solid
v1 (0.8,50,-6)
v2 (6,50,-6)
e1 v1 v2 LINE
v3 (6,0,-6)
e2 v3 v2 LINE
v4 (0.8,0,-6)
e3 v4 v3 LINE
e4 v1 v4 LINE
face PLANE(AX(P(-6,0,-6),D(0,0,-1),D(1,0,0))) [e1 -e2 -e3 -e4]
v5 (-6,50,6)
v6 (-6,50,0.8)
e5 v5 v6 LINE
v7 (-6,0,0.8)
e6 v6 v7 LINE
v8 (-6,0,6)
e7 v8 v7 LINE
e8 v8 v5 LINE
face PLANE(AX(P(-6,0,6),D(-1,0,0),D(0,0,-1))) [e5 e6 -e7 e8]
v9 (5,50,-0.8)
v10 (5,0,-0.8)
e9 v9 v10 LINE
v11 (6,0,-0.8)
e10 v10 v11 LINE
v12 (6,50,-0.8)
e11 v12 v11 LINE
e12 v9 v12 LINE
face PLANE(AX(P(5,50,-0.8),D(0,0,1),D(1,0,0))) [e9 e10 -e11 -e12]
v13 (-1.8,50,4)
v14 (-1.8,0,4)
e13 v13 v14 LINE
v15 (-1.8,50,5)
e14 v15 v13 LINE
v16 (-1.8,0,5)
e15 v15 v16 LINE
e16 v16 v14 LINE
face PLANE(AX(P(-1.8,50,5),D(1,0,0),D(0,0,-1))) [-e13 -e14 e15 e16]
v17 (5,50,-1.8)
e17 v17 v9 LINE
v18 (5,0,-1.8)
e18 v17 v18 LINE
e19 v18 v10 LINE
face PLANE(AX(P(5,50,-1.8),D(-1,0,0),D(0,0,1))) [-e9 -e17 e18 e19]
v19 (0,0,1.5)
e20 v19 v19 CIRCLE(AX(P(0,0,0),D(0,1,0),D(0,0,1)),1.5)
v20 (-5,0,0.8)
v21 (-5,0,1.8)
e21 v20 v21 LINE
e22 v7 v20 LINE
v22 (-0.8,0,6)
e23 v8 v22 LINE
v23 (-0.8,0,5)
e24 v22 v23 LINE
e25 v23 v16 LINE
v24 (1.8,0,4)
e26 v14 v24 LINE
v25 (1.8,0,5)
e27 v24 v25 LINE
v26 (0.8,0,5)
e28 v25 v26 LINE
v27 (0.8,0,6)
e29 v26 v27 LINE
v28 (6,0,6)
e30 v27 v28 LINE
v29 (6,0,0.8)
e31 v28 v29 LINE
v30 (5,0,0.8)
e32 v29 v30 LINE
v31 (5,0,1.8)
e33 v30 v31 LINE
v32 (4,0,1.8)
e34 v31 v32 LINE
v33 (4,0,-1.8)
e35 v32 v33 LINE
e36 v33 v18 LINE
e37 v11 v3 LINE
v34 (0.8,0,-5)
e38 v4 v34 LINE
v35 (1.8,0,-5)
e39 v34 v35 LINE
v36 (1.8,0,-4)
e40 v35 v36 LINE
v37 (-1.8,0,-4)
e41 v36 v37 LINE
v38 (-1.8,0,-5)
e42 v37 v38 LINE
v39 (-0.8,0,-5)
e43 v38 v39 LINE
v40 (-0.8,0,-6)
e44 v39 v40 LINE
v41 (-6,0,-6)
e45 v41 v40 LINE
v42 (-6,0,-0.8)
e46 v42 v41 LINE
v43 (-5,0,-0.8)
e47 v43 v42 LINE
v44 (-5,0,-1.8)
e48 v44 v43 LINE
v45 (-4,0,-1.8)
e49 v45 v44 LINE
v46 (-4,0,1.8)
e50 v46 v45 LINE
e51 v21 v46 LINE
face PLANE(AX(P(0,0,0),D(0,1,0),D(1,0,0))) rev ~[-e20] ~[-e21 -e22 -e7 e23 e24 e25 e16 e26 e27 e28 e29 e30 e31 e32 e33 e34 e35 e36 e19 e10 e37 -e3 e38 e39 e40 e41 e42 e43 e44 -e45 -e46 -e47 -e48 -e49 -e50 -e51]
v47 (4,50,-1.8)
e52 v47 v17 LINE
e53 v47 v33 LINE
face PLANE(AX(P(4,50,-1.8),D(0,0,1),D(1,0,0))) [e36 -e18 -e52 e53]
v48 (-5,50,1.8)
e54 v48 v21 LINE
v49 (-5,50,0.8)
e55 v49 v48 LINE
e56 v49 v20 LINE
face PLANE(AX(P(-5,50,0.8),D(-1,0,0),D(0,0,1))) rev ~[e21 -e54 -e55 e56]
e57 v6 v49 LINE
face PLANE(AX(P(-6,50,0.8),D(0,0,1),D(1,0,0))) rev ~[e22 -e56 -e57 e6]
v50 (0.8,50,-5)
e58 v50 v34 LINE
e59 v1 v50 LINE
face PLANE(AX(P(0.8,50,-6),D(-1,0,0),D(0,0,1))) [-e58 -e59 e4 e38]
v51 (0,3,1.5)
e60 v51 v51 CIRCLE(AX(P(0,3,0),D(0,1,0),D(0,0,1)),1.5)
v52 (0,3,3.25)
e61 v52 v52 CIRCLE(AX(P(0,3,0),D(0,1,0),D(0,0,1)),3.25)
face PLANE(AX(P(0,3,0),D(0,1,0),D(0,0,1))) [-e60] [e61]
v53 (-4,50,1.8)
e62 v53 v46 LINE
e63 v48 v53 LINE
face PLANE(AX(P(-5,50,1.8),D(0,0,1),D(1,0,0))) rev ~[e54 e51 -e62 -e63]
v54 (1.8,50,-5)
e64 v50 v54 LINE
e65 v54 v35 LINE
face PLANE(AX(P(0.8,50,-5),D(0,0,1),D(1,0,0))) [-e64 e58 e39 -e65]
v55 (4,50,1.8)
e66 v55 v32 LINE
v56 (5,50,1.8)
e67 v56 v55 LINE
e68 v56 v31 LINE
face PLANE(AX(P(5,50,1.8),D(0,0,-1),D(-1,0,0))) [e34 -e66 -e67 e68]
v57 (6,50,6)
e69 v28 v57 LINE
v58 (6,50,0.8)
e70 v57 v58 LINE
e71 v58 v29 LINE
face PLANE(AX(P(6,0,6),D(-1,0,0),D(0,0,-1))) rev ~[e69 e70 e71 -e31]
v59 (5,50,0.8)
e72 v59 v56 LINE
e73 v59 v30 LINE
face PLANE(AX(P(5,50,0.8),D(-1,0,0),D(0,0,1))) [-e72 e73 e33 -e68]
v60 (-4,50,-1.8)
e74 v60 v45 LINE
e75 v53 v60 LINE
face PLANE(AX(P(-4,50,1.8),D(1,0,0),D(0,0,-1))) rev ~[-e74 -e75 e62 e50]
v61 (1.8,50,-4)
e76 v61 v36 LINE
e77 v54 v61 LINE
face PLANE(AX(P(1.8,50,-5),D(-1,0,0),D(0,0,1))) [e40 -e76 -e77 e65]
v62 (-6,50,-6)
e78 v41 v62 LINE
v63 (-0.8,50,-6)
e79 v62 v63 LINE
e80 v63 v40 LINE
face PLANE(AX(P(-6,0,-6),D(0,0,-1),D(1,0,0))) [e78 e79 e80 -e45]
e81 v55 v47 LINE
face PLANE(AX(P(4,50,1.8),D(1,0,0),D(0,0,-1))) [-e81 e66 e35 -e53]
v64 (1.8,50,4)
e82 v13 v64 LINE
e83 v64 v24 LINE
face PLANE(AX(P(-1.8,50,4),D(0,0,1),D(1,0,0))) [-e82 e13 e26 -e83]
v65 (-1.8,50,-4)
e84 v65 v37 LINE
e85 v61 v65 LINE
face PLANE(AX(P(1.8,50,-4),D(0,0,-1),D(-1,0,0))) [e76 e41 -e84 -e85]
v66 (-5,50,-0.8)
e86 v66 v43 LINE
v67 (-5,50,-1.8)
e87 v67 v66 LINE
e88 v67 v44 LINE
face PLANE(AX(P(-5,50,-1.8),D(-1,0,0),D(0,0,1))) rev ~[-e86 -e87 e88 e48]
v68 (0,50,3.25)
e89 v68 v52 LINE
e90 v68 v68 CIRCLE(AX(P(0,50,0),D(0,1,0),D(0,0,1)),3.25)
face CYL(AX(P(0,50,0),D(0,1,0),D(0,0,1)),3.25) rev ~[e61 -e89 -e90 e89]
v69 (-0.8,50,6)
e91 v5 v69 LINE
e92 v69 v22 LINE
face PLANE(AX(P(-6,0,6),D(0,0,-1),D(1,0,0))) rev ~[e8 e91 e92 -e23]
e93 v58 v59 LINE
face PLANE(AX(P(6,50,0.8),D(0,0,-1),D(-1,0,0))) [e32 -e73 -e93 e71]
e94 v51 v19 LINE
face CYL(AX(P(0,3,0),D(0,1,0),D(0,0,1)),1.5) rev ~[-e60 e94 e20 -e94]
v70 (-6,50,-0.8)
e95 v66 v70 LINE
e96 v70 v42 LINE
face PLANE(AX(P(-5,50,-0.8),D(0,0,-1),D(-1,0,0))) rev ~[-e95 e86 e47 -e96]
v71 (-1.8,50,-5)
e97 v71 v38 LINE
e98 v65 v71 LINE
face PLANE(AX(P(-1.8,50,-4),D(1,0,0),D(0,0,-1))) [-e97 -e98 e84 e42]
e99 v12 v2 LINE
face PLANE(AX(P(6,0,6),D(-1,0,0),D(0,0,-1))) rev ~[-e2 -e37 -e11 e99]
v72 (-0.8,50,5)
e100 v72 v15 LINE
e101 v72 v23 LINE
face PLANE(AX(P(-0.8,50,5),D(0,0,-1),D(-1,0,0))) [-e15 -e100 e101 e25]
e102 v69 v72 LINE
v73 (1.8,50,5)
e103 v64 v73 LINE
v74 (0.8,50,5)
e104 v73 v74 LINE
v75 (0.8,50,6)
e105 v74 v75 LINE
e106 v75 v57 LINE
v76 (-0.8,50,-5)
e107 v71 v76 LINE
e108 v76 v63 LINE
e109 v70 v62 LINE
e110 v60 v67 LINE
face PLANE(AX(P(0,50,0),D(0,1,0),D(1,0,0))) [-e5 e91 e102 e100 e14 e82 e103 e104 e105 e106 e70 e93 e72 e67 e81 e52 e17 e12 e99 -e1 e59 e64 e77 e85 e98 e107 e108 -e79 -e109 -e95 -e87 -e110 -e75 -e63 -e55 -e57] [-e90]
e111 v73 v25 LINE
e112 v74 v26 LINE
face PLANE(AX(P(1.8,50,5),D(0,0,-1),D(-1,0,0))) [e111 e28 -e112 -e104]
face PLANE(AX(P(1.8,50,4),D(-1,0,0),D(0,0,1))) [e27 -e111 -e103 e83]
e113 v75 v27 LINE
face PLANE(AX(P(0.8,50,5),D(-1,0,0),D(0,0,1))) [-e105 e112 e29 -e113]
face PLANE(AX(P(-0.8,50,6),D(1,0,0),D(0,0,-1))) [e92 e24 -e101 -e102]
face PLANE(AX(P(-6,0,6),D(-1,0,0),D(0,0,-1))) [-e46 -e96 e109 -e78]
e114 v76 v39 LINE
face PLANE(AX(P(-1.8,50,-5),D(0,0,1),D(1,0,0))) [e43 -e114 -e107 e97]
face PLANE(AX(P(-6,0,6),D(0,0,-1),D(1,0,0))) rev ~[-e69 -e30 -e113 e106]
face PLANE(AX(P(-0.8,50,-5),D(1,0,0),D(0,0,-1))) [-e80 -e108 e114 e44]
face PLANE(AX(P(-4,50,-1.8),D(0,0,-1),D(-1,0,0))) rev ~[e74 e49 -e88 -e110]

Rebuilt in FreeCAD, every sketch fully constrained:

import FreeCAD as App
import Part
import Sketcher


def add_polygon(sketch, points):
    """Adds a closed chain of lines whose ends are joined by coincident constraints."""
    first, n = sketch.GeometryCount, len(points)
    for a, b in zip(points, points[1:] + points[:1]):
        sketch.addGeometry(Part.LineSegment(App.Vector(*a, 0), App.Vector(*b, 0)), False)
    for i in range(n):
        sketch.addConstraint(Sketcher.Constraint("Coincident", first + i, 2, first + (i + 1) % n, 1))

doc = App.newDocument("Part")
body = doc.addObject("PartDesign::Body", "Body")

sketch1 = body.newObject("Sketcher::SketchObject", "Sketch")
sketch1.AttachmentSupport = (doc.getObject("XZ_Plane"), [""])
sketch1.MapMode = "FlatFace"
add_polygon(sketch1, [(-6, -6), (-6, 6), (6, 6), (6, -6)])
sketch1.addConstraint([
    Sketcher.Constraint("Vertical", 0),
    Sketcher.Constraint("Horizontal", 1),
    Sketcher.Constraint("Vertical", 2),
    Sketcher.Constraint("Horizontal", 3),
    Sketcher.Constraint("Symmetric", 0, 2, 2, 2, -1, 1),
    Sketcher.Constraint("Equal", 3, 0),
    Sketcher.Constraint("DistanceX", 1, 1, 1, 2, 12.0),
])
pad1 = body.newObject("PartDesign::Pad", "Pad")
pad1.Profile = sketch1
pad1.Length = 50
pad1.Reversed = True

sketch2 = body.newObject("Sketcher::SketchObject", "Sketch001")
sketch2.AttachmentSupport = (doc.getObject("XZ_Plane"), [""])
sketch2.MapMode = "FlatFace"
sketch2.AttachmentOffset = App.Placement(App.Vector(0, 0, -50), App.Rotation())
add_polygon(sketch2, [(-5, 0.8), (-5, 1.8), (-4, 1.8), (-4, -1.8), (-5, -1.8), (-5, -0.8), (-6, -0.8), (-6, 0.8)])
add_polygon(sketch2, [(1.8, -4), (1.8, -5), (0.8, -5), (0.8, -6), (-0.8, -6), (-0.8, -5), (-1.8, -5), (-1.8, -4)])
add_polygon(sketch2, [(4, 1.8), (5, 1.8), (5, 0.8), (6, 0.8), (6, -0.8), (5, -0.8), (5, -1.8), (4, -1.8)])
add_polygon(sketch2, [(-1.8, 4), (-1.8, 5), (-0.8, 5), (-0.8, 6), (0.8, 6), (0.8, 5), (1.8, 5), (1.8, 4)])
sketch2.addConstraint([
    Sketcher.Constraint("Vertical", 0),
    Sketcher.Constraint("Horizontal", 1),
    Sketcher.Constraint("Vertical", 2),
    Sketcher.Constraint("Horizontal", 3),
    Sketcher.Constraint("Vertical", 4),
    Sketcher.Constraint("Horizontal", 5),
    Sketcher.Constraint("Vertical", 6),
    Sketcher.Constraint("Horizontal", 7),
    Sketcher.Constraint("Vertical", 8),
    Sketcher.Constraint("Horizontal", 9),
    Sketcher.Constraint("Vertical", 10),
    Sketcher.Constraint("Horizontal", 11),
    Sketcher.Constraint("Vertical", 12),
    Sketcher.Constraint("Horizontal", 13),
    Sketcher.Constraint("Vertical", 14),
    Sketcher.Constraint("Horizontal", 15),
    Sketcher.Constraint("Horizontal", 16),
    Sketcher.Constraint("Vertical", 17),
    Sketcher.Constraint("Horizontal", 18),
    Sketcher.Constraint("Vertical", 19),
    Sketcher.Constraint("Horizontal", 20),
    Sketcher.Constraint("Vertical", 21),
    Sketcher.Constraint("Horizontal", 22),
    Sketcher.Constraint("Vertical", 23),
    Sketcher.Constraint("Vertical", 24),
    Sketcher.Constraint("Horizontal", 25),
    Sketcher.Constraint("Vertical", 26),
    Sketcher.Constraint("Horizontal", 27),
    Sketcher.Constraint("Vertical", 28),
    Sketcher.Constraint("Horizontal", 29),
    Sketcher.Constraint("Vertical", 30),
    Sketcher.Constraint("Horizontal", 31),
    Sketcher.Constraint("Symmetric", 3, 2, 16, 2, -1, 1),
    Sketcher.Constraint("Symmetric", 5, 2, 18, 2, -1, 1),
    Sketcher.Constraint("Symmetric", 7, 2, 20, 2, -1, 1),
    Sketcher.Constraint("Symmetric", 1, 2, 22, 2, -1, 1),
    Sketcher.Constraint("Symmetric", 8, 2, 24, 2, -1, 1),
    Sketcher.Constraint("Symmetric", 10, 2, 26, 2, -1, 1),
    Sketcher.Constraint("Symmetric", 12, 2, 28, 2, -1, 1),
    Sketcher.Constraint("Symmetric", 14, 2, 30, 2, -1, 1),
    Sketcher.Constraint("Symmetric", 9, 2, 12, 2, -2),
    Sketcher.Constraint("Symmetric", 0, 2, 16, 2, -2),
    Sketcher.Constraint("Horizontal", 7, 2, 17, 2),
    Sketcher.Constraint("Vertical", 14, 2, 24, 2),
    Sketcher.Constraint("Equal", 3, 5),
    Sketcher.Constraint("Equal", 7, 9),
    Sketcher.Constraint("Equal", 29, 0),
    Sketcher.Constraint("Equal", 31, 2),
    Sketcher.Constraint("Equal", 4, 8),
    Sketcher.Constraint("Equal", 8, 10),
    Sketcher.Constraint("DistanceX", 1, 1, 1, 2, 1.0),
    Sketcher.Constraint("DistanceX", 11, 2, 11, 1, 1.6),
    Sketcher.Constraint("DistanceX", 0, 2, -1, 1, 5.0),
    Sketcher.Constraint("DistanceY", 8, 2, -1, 1, 5.0),
])
pocket1 = body.newObject("PartDesign::Pocket", "Pocket")
pocket1.Profile = sketch2
pocket1.Length = 50
pocket1.Reversed = True

sketch3 = body.newObject("Sketcher::SketchObject", "Sketch002")
sketch3.AttachmentSupport = (doc.getObject("XZ_Plane"), [""])
sketch3.MapMode = "FlatFace"
sketch3.AttachmentOffset = App.Placement(App.Vector(0, 0, -50), App.Rotation())
sketch3.addGeometry(Part.Circle(App.Vector(0, 0, 0), App.Vector(0, 0, 1), 3.25), False)
sketch3.addConstraint([
    Sketcher.Constraint("Coincident", 0, 3, -1, 1),
    Sketcher.Constraint("Diameter", 0, 6.5),
])
pocket2 = body.newObject("PartDesign::Pocket", "Pocket001")
pocket2.Profile = sketch3
pocket2.Length = 47
pocket2.Reversed = True

sketch4 = body.newObject("Sketcher::SketchObject", "Sketch003")
sketch4.AttachmentSupport = (doc.getObject("XZ_Plane"), [""])
sketch4.MapMode = "FlatFace"
sketch4.AttachmentOffset = App.Placement(App.Vector(0, 0, -3), App.Rotation())
sketch4.addGeometry(Part.Circle(App.Vector(0, 0, 0), App.Vector(0, 0, 1), 1.5), False)
sketch4.addConstraint([
    Sketcher.Constraint("Coincident", 0, 3, -1, 1),
    Sketcher.Constraint("Diameter", 0, 3.0),
])
pocket3 = body.newObject("PartDesign::Pocket", "Pocket002")
pocket3.Profile = sketch4
pocket3.Length = 3
pocket3.Reversed = True

doc.recompute()
